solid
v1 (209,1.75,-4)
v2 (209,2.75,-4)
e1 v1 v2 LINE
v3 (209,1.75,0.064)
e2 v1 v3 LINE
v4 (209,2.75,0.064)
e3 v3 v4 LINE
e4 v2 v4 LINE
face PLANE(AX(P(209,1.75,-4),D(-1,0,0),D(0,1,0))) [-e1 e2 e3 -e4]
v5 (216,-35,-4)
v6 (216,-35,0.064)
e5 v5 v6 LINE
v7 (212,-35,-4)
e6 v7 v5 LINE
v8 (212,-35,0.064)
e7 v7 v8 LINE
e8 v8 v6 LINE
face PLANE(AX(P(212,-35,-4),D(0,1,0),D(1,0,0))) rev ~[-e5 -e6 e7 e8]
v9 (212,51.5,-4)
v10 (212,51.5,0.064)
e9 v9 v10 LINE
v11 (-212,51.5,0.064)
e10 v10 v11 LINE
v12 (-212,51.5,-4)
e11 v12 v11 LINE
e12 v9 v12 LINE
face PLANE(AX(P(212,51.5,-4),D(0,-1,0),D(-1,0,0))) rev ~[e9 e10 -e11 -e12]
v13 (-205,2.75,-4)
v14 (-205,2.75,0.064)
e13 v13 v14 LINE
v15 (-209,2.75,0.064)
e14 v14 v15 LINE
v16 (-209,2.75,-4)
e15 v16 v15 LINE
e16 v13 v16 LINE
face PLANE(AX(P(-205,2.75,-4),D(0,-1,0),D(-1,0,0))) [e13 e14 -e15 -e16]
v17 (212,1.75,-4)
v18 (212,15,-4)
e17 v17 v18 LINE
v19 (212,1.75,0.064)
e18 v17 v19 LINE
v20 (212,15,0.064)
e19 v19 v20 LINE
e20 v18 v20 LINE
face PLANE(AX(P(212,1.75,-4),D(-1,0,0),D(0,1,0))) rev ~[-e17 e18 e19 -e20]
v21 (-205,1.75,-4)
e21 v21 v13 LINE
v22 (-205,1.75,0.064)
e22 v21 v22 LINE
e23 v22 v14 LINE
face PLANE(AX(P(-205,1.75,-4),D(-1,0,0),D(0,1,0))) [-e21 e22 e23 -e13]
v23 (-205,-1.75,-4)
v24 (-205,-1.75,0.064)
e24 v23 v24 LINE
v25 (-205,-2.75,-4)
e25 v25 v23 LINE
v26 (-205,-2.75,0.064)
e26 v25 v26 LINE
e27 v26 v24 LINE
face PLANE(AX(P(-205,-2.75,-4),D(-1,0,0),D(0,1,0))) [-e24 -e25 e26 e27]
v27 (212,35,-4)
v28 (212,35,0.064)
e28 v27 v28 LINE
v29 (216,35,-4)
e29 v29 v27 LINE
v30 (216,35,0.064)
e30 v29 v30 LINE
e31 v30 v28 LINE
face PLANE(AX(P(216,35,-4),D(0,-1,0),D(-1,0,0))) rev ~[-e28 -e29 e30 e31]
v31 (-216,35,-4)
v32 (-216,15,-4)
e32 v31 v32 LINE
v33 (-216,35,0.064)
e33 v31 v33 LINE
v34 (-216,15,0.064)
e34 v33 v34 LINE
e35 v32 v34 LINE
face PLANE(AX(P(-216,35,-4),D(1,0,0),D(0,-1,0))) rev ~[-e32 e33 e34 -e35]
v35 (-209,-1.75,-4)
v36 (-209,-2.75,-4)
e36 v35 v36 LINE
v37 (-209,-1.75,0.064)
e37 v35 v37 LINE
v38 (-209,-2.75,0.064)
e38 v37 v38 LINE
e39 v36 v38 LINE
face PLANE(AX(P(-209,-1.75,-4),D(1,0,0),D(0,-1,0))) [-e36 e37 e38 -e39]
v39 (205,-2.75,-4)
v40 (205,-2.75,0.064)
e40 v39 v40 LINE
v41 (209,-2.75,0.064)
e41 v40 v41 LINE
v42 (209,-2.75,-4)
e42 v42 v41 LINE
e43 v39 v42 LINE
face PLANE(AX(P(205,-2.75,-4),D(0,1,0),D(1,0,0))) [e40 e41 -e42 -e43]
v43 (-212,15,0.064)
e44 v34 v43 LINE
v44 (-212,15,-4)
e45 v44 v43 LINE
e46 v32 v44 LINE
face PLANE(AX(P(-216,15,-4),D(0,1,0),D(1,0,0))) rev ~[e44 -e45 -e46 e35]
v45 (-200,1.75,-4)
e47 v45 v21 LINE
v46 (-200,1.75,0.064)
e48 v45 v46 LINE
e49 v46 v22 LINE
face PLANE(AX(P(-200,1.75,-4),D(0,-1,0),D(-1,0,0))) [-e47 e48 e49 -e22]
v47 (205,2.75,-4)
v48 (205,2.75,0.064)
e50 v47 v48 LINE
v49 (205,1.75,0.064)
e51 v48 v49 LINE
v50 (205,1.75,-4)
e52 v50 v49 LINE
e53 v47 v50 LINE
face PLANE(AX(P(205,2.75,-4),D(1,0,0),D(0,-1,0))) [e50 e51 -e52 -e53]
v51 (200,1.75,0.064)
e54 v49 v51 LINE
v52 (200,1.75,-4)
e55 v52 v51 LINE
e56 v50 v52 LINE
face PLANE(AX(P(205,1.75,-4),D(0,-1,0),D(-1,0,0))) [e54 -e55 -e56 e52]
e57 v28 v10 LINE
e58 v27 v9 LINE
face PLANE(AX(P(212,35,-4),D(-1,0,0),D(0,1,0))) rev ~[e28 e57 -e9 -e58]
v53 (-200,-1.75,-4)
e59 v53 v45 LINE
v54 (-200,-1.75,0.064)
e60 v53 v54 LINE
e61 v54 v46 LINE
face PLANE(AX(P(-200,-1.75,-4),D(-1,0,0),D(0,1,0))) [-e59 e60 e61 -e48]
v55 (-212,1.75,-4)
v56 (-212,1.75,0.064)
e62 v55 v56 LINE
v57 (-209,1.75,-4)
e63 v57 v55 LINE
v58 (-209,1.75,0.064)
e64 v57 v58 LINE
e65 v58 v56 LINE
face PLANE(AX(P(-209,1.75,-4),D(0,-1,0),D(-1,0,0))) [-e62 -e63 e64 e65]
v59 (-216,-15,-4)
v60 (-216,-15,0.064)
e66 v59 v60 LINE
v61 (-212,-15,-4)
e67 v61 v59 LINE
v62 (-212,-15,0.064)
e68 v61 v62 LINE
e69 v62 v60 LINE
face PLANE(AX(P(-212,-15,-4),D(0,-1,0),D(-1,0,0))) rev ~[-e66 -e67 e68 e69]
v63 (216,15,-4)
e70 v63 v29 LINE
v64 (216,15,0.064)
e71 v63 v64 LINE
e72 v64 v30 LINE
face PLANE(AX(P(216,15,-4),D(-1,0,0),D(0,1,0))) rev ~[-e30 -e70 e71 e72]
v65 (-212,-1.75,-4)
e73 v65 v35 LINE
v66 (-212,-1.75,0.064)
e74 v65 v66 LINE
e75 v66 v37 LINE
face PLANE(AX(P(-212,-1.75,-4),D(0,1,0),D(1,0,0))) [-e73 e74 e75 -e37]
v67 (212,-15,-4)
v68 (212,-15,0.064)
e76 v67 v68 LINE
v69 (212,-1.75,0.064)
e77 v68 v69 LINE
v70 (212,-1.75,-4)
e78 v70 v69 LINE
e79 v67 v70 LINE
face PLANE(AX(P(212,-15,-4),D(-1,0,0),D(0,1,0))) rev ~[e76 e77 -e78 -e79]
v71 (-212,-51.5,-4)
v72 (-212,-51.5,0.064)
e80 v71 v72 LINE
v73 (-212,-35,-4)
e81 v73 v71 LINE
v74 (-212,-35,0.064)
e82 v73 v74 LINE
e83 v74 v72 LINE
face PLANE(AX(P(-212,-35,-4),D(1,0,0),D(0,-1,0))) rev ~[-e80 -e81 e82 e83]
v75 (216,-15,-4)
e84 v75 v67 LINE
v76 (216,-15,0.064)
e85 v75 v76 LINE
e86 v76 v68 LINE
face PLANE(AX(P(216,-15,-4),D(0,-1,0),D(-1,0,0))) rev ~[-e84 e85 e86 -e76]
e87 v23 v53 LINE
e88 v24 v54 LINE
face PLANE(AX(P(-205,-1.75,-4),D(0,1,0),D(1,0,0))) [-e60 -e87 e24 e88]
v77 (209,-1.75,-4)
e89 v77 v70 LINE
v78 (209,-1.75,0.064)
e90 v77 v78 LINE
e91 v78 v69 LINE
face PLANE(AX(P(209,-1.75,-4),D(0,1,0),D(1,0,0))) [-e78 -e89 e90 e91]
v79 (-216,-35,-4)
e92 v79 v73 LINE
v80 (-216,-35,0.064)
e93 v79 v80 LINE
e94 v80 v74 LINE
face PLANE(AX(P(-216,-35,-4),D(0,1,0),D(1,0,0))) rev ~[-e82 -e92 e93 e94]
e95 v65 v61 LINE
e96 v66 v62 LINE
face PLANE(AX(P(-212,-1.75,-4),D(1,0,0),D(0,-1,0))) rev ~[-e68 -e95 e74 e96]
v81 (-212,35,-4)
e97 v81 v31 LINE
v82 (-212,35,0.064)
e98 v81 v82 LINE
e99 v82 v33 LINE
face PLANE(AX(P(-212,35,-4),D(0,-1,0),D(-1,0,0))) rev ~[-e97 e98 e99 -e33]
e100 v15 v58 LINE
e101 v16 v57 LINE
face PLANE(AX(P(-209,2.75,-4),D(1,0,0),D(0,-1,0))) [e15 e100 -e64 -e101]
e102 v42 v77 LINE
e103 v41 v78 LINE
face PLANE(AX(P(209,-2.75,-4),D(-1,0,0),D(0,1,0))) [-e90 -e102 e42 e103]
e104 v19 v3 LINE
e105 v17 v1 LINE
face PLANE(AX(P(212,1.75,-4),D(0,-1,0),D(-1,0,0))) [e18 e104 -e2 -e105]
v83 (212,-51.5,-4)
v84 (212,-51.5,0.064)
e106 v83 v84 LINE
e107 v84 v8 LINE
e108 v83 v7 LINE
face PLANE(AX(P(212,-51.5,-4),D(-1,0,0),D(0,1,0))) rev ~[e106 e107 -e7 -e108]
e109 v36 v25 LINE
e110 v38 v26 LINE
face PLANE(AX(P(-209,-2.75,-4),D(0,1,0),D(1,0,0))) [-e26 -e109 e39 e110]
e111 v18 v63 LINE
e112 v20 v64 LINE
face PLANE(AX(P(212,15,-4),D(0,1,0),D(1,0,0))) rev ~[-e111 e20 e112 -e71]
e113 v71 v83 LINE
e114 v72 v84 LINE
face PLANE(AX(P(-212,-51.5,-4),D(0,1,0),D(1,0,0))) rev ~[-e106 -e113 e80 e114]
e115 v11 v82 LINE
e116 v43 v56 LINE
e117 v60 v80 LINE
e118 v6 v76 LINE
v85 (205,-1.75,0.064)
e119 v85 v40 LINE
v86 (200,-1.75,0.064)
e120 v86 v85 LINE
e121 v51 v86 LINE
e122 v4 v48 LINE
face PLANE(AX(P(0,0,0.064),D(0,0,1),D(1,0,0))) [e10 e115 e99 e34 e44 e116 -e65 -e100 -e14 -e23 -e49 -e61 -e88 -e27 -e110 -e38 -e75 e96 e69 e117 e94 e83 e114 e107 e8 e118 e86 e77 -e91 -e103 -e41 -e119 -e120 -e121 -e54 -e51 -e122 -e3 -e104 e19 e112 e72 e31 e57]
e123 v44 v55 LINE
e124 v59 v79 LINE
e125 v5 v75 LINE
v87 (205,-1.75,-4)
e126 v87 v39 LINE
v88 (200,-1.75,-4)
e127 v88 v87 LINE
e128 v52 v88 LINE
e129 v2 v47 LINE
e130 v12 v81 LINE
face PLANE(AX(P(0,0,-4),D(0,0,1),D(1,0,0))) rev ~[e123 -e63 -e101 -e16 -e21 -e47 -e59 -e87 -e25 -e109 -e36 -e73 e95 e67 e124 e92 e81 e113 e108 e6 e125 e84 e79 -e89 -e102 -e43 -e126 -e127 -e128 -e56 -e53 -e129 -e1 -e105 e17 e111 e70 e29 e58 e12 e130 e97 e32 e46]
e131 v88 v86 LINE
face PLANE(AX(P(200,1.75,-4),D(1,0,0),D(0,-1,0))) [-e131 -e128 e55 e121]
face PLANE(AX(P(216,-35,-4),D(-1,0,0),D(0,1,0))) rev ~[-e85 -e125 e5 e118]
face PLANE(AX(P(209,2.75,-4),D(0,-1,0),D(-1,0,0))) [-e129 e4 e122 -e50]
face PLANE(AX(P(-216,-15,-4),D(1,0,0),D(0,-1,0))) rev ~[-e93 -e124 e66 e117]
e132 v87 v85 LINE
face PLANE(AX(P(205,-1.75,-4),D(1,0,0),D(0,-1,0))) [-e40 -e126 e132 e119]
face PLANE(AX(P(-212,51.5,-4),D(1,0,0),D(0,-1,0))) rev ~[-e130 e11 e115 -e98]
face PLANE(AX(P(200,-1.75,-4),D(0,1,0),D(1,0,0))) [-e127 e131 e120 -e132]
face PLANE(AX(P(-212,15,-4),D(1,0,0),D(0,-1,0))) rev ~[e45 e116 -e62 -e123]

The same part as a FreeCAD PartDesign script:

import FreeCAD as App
import Part
import Sketcher
from FreeCAD import Vector


def add_polygon(sketch, points):
    """Adds a closed chain of lines whose ends are joined by coincident constraints."""
    first, n = sketch.GeometryCount, len(points)
    for a, b in zip(points, points[1:] + points[:1]):
        sketch.addGeometry(Part.LineSegment(App.Vector(*a, 0), App.Vector(*b, 0)), False)
    for i in range(n):
        sketch.addConstraint(Sketcher.Constraint("Coincident", first + i, 2, first + (i + 1) % n, 1))

doc = App.newDocument("Part")
body = doc.addObject("PartDesign::Body", "Body")

# Sketch on XY plane
sketch1 = body.newObject("Sketcher::SketchObject", "Sketch")
sketch1.AttachmentSupport = (doc.getObject("XY_Plane"), [""])
sketch1.MapMode = "FlatFace"
sketch1.AttachmentOffset = App.Placement(Vector(0, 0, -4), App.Rotation())
add_polygon(sketch1, [(209, -1.75), (209, -2.75), (205, -2.75), (205, -1.75), (200, -1.75), (200, 1.75), (205, 1.75), (205, 2.75), (209, 2.75), (209, 1.75), (212, 1.75), (212, 15), (216, 15), (216, 35), (212, 35), (212, 51.5), (-212, 51.5), (-212, 35), (-216, 35), (-216, 15), (-212, 15), (-212, 1.75), (-209, 1.75), (-209, 2.75), (-205, 2.75), (-205, 1.75), (-200, 1.75), (-200, -1.75), (-205, -1.75), (-205, -2.75), (-209, -2.75), (-209, -1.75), (-212, -1.75), (-212, -15), (-216, -15), (-216, -35), (-212, -35), (-212, -51.5), (212, -51.5), (212, -35), (216, -35), (216, -15), (212, -15), (212, -1.75)])  # lines 0-43
sketch1.addConstraint(Sketcher.Constraint("Vertical", 0))
sketch1.addConstraint(Sketcher.Constraint("Horizontal", 1))
sketch1.addConstraint(Sketcher.Constraint("Vertical", 2))
sketch1.addConstraint(Sketcher.Constraint("Horizontal", 3))
sketch1.addConstraint(Sketcher.Constraint("Vertical", 4))
sketch1.addConstraint(Sketcher.Constraint("Horizontal", 5))
sketch1.addConstraint(Sketcher.Constraint("Vertical", 6))
sketch1.addConstraint(Sketcher.Constraint("Horizontal", 7))
sketch1.addConstraint(Sketcher.Constraint("Vertical", 8))
sketch1.addConstraint(Sketcher.Constraint("Horizontal", 9))
sketch1.addConstraint(Sketcher.Constraint("Vertical", 10))
sketch1.addConstraint(Sketcher.Constraint("Horizontal", 11))
sketch1.addConstraint(Sketcher.Constraint("Vertical", 12))
sketch1.addConstraint(Sketcher.Constraint("Horizontal", 13))
sketch1.addConstraint(Sketcher.Constraint("Vertical", 14))
sketch1.addConstraint(Sketcher.Constraint("Horizontal", 15))
sketch1.addConstraint(Sketcher.Constraint("Vertical", 16))
sketch1.addConstraint(Sketcher.Constraint("Horizontal", 17))
sketch1.addConstraint(Sketcher.Constraint("Vertical", 18))
sketch1.addConstraint(Sketcher.Constraint("Horizontal", 19))
sketch1.addConstraint(Sketcher.Constraint("Vertical", 20))
sketch1.addConstraint(Sketcher.Constraint("Horizontal", 21))
sketch1.addConstraint(Sketcher.Constraint("Vertical", 22))
sketch1.addConstraint(Sketcher.Constraint("Horizontal", 23))
sketch1.addConstraint(Sketcher.Constraint("Vertical", 24))
sketch1.addConstraint(Sketcher.Constraint("Horizontal", 25))
sketch1.addConstraint(Sketcher.Constraint("Vertical", 26))
sketch1.addConstraint(Sketcher.Constraint("Horizontal", 27))
sketch1.addConstraint(Sketcher.Constraint("Vertical", 28))
sketch1.addConstraint(Sketcher.Constraint("Horizontal", 29))
sketch1.addConstraint(Sketcher.Constraint("Vertical", 30))
sketch1.addConstraint(Sketcher.Constraint("Horizontal", 31))
sketch1.addConstraint(Sketcher.Constraint("Vertical", 32))
sketch1.addConstraint(Sketcher.Constraint("Horizontal", 33))
sketch1.addConstraint(Sketcher.Constraint("Vertical", 34))
sketch1.addConstraint(Sketcher.Constraint("Horizontal", 35))
sketch1.addConstraint(Sketcher.Constraint("Vertical", 36))
sketch1.addConstraint(Sketcher.Constraint("Horizontal", 37))
sketch1.addConstraint(Sketcher.Constraint("Vertical", 38))
sketch1.addConstraint(Sketcher.Constraint("Horizontal", 39))
sketch1.addConstraint(Sketcher.Constraint("Vertical", 40))
sketch1.addConstraint(Sketcher.Constraint("Horizontal", 41))
sketch1.addConstraint(Sketcher.Constraint("Vertical", 42))
sketch1.addConstraint(Sketcher.Constraint("Horizontal", 43))
sketch1.addConstraint(Sketcher.Constraint("Symmetric", 0, 2, 22, 2, -1, 1))
sketch1.addConstraint(Sketcher.Constraint("Symmetric", 2, 2, 24, 2, -1, 1))
sketch1.addConstraint(Sketcher.Constraint("Symmetric", 4, 2, 26, 2, -1, 1))
sketch1.addConstraint(Sketcher.Constraint("Symmetric", 6, 2, 28, 2, -1, 1))
sketch1.addConstraint(Sketcher.Constraint("Symmetric", 8, 2, 30, 2, -1, 1))
sketch1.addConstraint(Sketcher.Constraint("Symmetric", 10, 2, 32, 2, -1, 1))
sketch1.addConstraint(Sketcher.Constraint("Symmetric", 12, 2, 34, 2, -1, 1))
sketch1.addConstraint(Sketcher.Constraint("Symmetric", 14, 2, 36, 2, -1, 1))
sketch1.addConstraint(Sketcher.Constraint("Symmetric", 16, 2, 38, 2, -1, 1))
sketch1.addConstraint(Sketcher.Constraint("Symmetric", 18, 2, 40, 2, -1, 1))
sketch1.addConstraint(Sketcher.Constraint("Symmetric", 20, 2, 42, 2, -1, 1))
sketch1.addConstraint(Sketcher.Constraint("Symmetric", 13, 2, 16, 2, -2))
sketch1.addConstraint(Sketcher.Constraint("Symmetric", 11, 2, 18, 2, -2))
sketch1.addConstraint(Sketcher.Constraint("Symmetric", 9, 2, 20, 2, -2))
sketch1.addConstraint(Sketcher.Constraint("Symmetric", 7, 2, 22, 2, -2))
sketch1.addConstraint(Sketcher.Constraint("Symmetric", 5, 2, 24, 2, -2))
sketch1.addConstraint(Sketcher.Constraint("Horizontal", 5, 2, 8, 2))
sketch1.addConstraint(Sketcher.Constraint("Vertical", 10, 2, 13, 2))
sketch1.addConstraint(Sketcher.Constraint("Equal", 7, 11))
sketch1.addConstraint(Sketcher.Constraint("DistanceX", 1, 2, 1, 1, 4.0))
sketch1.addConstraint(Sketcher.Constraint("DistanceX", 3, 2, 3, 1, 5.0))
sketch1.addConstraint(Sketcher.Constraint("DistanceX", 9, 1, 9, 2, 3.0))
sketch1.addConstraint(Sketcher.Constraint("DistanceX", 15, 2, 15, 1, 424.0))
sketch1.addConstraint(Sketcher.Constraint("DistanceY", 0, 2, 0, 1, 1.0))
sketch1.addConstraint(Sketcher.Constraint("DistanceY", 12, 1, 12, 2, 20.0))
sketch1.addConstraint(Sketcher.Constraint("DistanceY", 4, 1, 4, 2, 3.5))
sketch1.addConstraint(Sketcher.Constraint("DistanceY", 14, 1, 14, 2, 16.5))
sketch1.addConstraint(Sketcher.Constraint("DistanceY", -1, 1, 10, 2, 15.0))
pad1 = body.newObject("PartDesign::Pad", "Pad")
pad1.Profile = sketch1
pad1.Length = 4.064

doc.recompute()
